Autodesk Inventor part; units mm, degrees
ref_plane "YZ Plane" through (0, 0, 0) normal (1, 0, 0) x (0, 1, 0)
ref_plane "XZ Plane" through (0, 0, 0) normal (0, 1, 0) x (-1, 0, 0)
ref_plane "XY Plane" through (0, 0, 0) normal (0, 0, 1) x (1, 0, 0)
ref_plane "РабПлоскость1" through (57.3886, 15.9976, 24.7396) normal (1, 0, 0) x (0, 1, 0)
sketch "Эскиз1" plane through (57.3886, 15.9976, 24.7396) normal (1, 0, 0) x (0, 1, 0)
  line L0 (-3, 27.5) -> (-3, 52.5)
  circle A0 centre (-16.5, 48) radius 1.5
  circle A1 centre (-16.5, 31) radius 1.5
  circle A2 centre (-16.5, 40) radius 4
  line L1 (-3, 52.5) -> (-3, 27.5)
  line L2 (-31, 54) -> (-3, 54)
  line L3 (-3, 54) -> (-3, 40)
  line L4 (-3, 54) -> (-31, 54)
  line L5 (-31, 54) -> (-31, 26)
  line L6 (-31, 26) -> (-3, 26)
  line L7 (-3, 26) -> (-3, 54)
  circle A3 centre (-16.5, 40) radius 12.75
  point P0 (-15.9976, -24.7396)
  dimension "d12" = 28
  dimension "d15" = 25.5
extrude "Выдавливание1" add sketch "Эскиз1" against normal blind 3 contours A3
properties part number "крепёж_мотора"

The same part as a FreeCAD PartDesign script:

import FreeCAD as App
import Part
import Sketcher

V = App.Vector
Q = App.Units.Quantity

doc = App.newDocument("Part")
params = doc.addObject("Spreadsheet::Sheet", "Params")
for row, (alias, value) in enumerate([
    ("sketch1_diameter", "25.5 mm"),
    ("sketch1_diameter2", "3 mm"),
    ("sketch1_diameter3", "8 mm"),
    ("pad1_length", "3 mm"),
], start=1):
    params.set(f"A{row}", alias)
    params.set(f"B{row}", "=" + value)
    params.setAlias(f"B{row}", alias)

body = doc.addObject("PartDesign::Body", "Body")

# Sketch on YZ plane
sketch1 = body.newObject("Sketcher::SketchObject", "Sketch")
sketch1.AttachmentSupport = (doc.getObject("YZ_Plane"), [""])
sketch1.MapMode = "FlatFace"
sketch1.AttachmentOffset = App.Placement(V(0, 0, 57.3886), App.Rotation())
sketch1.addGeometry([
    Part.Circle(V(-0.5024, 64.7396, 0), V(0, 0, 1), 12.75),
    Part.Circle(V(-0.5024, 55.7396, 0), V(0, 0, 1), 1.5),
    Part.Circle(V(-0.5024, 64.7396, 0), V(0, 0, 1), 4),
    Part.Circle(V(-0.5024, 72.7396, 0), V(0, 0, 1), 1.5),
], False)
sketch1.addConstraint([
    Sketcher.Constraint("Coincident", 2, 3, 0, 3),
    Sketcher.Constraint("Equal", 1, 3),
    Sketcher.Constraint("Vertical", 0, 3, 1, 3),
    Sketcher.Constraint("Vertical", 2, 3, 3, 3),
    Sketcher.Constraint("Diameter", 0, Q("25.5 mm")),
    Sketcher.Constraint("Diameter", 1, Q("3 mm")),
    Sketcher.Constraint("Diameter", 2, Q("8 mm")),
    Sketcher.Constraint("DistanceY", 1, 3, 0, 3, Q("9 mm")),
    Sketcher.Constraint("DistanceY", 0, 3, 3, 3, Q("8 mm")),
    Sketcher.Constraint("DistanceX", 0, 3, -1, 1, Q("0.5024 mm")),
    Sketcher.Constraint("DistanceY", -1, 1, 0, 3, Q("64.7396 mm")),
])
sketch1.setExpression("Constraints[4]", "Params.sketch1_diameter")
sketch1.setExpression("Constraints[5]", "Params.sketch1_diameter2")
sketch1.setExpression("Constraints[6]", "Params.sketch1_diameter3")
pad1 = body.newObject("PartDesign::Pad", "Pad")
pad1.Profile = sketch1
pad1.setExpression("Length", "Params.pad1_length")
pad1.Reversed = True

doc.recompute()
